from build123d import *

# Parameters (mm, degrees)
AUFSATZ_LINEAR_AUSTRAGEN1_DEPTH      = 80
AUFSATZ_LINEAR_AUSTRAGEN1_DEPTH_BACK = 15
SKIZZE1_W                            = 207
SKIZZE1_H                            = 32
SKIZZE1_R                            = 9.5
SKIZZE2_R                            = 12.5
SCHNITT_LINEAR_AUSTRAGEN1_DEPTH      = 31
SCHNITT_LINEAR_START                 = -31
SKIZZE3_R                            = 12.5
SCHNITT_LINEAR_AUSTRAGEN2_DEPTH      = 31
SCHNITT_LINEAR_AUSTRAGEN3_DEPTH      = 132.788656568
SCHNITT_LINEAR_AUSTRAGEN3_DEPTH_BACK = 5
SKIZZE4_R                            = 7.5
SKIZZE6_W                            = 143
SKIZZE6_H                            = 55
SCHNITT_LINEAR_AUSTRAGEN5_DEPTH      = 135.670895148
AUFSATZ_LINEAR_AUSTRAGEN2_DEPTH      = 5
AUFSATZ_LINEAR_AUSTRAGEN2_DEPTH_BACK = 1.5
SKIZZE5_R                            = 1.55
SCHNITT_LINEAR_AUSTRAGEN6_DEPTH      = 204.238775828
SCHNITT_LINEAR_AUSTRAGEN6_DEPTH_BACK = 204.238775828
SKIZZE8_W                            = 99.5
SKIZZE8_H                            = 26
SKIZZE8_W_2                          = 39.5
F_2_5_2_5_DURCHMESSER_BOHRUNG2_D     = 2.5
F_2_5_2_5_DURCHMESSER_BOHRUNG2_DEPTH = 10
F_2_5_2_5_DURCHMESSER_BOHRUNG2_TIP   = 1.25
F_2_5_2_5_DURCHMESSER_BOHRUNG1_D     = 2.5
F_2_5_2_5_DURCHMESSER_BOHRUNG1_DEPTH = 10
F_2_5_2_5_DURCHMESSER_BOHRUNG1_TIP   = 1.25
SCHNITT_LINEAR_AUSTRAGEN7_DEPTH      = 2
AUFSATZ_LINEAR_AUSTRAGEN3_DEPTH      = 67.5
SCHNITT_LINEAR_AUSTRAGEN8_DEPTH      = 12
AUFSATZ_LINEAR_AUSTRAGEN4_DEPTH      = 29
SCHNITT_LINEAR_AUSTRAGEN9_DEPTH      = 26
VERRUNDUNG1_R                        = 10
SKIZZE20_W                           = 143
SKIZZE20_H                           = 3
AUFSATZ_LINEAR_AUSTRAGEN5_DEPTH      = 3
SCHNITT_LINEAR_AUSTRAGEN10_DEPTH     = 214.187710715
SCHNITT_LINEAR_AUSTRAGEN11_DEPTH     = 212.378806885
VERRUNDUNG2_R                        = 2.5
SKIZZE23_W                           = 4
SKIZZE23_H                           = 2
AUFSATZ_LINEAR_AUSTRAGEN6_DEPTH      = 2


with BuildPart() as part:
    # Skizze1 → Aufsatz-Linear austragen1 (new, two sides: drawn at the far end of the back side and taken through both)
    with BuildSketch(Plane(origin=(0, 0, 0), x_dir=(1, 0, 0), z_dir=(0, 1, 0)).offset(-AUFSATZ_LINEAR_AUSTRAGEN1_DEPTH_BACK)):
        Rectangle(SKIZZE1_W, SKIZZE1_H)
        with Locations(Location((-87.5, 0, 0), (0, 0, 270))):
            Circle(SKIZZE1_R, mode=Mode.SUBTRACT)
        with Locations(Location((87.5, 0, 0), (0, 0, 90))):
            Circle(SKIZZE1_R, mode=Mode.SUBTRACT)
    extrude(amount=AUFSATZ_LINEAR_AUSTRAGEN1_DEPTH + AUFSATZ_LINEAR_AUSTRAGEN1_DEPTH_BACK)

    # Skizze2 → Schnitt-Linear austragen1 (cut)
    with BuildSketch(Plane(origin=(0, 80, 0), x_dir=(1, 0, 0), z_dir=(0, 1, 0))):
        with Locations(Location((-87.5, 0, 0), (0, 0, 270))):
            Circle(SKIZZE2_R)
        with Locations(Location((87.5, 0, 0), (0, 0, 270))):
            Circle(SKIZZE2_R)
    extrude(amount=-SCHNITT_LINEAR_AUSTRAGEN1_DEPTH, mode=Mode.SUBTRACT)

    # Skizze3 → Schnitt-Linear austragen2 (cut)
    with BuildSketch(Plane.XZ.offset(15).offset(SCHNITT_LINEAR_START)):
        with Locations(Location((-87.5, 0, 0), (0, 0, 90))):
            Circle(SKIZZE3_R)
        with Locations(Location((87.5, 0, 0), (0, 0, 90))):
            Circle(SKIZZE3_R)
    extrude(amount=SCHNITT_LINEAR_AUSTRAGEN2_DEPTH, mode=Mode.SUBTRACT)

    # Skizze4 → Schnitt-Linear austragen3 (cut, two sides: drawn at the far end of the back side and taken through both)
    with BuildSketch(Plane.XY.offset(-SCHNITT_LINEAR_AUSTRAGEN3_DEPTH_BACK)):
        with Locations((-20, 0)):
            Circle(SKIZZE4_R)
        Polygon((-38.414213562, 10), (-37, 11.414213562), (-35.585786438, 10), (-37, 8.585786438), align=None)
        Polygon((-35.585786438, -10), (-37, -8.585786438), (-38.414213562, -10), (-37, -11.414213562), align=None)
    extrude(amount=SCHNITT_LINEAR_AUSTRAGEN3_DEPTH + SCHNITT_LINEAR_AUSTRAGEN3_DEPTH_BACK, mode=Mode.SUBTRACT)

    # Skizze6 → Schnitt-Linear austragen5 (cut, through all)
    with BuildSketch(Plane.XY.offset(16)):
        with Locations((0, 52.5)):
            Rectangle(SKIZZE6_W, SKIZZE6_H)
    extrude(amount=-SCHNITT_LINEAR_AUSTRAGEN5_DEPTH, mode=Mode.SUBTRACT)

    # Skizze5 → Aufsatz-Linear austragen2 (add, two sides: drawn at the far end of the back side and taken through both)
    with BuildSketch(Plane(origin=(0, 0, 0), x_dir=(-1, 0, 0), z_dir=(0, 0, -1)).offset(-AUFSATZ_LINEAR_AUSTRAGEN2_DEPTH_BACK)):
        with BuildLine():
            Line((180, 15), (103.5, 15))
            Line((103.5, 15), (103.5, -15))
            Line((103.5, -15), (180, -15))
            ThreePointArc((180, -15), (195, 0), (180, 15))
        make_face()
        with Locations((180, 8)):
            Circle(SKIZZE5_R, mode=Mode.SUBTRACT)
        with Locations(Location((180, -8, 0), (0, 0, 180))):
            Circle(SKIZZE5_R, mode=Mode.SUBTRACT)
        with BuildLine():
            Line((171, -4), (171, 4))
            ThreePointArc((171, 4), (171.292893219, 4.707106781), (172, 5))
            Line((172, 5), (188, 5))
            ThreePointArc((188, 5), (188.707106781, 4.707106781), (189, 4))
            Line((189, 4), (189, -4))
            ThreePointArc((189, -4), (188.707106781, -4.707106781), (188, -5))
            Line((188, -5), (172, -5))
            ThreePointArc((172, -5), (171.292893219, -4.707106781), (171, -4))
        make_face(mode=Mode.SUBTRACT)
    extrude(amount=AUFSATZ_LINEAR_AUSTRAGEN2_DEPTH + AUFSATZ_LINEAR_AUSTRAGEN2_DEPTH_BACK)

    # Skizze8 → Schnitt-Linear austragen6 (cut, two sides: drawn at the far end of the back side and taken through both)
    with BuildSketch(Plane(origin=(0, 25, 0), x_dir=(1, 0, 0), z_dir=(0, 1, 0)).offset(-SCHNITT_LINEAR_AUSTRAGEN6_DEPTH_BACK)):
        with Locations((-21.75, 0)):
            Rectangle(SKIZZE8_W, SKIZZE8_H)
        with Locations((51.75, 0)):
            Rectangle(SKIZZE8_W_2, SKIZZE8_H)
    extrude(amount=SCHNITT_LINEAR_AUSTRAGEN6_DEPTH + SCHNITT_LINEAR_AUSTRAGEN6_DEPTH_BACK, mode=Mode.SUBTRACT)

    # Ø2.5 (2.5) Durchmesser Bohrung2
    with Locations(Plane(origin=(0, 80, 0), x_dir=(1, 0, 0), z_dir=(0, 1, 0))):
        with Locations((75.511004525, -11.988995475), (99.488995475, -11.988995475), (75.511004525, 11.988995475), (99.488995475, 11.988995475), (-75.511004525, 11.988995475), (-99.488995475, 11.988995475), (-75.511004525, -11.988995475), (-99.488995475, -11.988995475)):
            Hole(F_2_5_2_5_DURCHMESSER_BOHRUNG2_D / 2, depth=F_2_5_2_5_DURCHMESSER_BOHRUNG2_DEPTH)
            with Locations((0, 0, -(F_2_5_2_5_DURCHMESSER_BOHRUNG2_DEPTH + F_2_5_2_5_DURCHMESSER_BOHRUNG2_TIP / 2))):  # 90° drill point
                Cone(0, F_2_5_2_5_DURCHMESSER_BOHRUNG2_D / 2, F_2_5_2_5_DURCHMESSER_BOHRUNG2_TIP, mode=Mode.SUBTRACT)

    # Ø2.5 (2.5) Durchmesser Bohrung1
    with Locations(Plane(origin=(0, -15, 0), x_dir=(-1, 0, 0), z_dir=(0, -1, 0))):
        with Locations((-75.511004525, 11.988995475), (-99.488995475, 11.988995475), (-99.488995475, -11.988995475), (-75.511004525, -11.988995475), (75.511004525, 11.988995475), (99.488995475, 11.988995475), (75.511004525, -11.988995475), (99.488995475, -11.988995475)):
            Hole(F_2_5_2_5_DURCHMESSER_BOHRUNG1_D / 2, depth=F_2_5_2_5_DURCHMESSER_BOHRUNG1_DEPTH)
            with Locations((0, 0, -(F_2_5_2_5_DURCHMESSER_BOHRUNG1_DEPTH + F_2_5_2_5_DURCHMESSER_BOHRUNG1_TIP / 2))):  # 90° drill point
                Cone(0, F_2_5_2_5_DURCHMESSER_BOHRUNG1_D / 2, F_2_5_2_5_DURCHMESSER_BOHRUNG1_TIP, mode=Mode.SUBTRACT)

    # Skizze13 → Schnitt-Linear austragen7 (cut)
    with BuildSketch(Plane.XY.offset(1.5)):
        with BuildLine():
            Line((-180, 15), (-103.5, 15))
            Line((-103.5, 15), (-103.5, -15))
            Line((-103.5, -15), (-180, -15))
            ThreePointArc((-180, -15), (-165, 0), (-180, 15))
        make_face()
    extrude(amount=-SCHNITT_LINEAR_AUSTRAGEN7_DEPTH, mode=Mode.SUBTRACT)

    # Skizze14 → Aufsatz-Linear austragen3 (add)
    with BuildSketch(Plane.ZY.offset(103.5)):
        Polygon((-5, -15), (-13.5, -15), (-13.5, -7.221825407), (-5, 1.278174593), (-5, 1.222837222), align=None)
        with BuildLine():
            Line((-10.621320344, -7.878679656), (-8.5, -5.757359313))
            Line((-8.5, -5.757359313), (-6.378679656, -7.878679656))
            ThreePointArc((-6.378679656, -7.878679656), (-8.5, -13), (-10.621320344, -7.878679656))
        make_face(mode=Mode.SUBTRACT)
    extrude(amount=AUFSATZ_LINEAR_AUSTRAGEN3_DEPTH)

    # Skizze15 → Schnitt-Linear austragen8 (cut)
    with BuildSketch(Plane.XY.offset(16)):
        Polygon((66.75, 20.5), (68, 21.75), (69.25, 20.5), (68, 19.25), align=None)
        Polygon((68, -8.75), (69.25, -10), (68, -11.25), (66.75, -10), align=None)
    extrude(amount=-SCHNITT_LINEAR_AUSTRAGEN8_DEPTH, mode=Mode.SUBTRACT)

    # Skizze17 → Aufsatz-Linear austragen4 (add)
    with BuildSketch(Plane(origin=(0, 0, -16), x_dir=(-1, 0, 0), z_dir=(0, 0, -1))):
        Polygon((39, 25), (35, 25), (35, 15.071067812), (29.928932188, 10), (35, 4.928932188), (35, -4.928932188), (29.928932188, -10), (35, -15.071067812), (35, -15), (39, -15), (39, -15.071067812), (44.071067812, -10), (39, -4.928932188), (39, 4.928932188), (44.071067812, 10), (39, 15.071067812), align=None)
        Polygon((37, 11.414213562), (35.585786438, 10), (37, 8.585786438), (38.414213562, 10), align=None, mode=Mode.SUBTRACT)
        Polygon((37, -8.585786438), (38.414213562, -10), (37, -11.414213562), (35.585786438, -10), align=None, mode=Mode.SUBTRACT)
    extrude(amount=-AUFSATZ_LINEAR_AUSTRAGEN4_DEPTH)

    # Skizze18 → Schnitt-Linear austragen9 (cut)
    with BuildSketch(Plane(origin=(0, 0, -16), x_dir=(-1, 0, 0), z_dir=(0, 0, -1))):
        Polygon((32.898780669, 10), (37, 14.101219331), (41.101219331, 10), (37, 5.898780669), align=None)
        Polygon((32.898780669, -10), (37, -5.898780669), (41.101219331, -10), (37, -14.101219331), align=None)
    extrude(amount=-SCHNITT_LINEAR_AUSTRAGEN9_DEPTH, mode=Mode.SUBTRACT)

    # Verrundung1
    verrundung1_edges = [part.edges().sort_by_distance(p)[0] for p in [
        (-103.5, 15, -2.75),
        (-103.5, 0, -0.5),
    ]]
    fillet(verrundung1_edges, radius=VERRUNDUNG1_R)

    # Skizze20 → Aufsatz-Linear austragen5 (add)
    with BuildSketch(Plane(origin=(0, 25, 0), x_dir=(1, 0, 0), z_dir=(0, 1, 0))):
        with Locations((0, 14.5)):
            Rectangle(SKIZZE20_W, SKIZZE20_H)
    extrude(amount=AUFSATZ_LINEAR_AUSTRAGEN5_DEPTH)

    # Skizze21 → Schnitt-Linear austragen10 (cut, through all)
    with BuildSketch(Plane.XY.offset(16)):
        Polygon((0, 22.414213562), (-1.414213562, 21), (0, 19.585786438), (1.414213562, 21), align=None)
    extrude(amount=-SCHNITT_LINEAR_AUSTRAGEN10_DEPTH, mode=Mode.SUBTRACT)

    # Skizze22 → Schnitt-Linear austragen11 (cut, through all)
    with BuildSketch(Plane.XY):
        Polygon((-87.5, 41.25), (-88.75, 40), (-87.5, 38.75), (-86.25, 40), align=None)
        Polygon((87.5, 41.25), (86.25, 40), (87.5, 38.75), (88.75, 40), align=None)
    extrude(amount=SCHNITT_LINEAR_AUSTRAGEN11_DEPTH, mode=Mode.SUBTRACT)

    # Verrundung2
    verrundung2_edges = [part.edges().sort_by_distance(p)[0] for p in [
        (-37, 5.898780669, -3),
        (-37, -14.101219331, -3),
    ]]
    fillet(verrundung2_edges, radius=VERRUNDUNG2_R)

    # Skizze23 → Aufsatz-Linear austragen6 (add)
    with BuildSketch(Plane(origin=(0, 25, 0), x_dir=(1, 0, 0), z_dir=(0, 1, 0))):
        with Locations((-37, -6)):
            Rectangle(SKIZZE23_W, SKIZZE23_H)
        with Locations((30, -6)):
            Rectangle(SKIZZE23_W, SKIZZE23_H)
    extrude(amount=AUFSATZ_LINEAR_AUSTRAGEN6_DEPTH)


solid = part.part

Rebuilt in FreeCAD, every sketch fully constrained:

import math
import FreeCAD as App
import Part
import Sketcher
from FreeCAD import Vector


def edges_at(feature, points):
    """Names of the edges that pass closest to the given points."""
    edges = feature.Shape.Edges
    near = lambda p: min(range(len(edges)), key=lambda i: edges[i].distToShape(Part.Vertex(*p))[0])
    return sorted({f"Edge{near(p) + 1}" for p in points})

doc = App.newDocument("Part")
body = doc.addObject("PartDesign::Body", "Body")

sketch1 = doc.addObject("Sketcher::SketchObject", "Sketch")
body.addObject(sketch1)
sketch1.AttachmentSupport = (doc.XZ_Plane, [""])
sketch1.MapMode = "FlatFace"
sketch1.addGeometry([
    Part.LineSegment(Vector(-104, -16, 0), Vector(-104, 16, 0)),
    Part.LineSegment(Vector(-104, 16, 0), Vector(104, 16, 0)),
    Part.LineSegment(Vector(104, 16, 0), Vector(104, -16, 0)),
    Part.LineSegment(Vector(104, -16, 0), Vector(-104, -16, 0)),
    Part.Circle(Vector(-88, 0, 0), Vector(0, 0, 1), 10),
    Part.Circle(Vector(88, 0, 0), Vector(0, 0, 1), 10),
], False)
sketch1.addConstraint([
    Sketcher.Constraint("Coincident", 0, 2, 1, 1),
    Sketcher.Constraint("Coincident", 1, 2, 2, 1),
    Sketcher.Constraint("Coincident", 2, 2, 3, 1),
    Sketcher.Constraint("Coincident", 3, 2, 0, 1),
    Sketcher.Constraint("Vertical", 0),
    Sketcher.Constraint("Horizontal", 1),
    Sketcher.Constraint("Vertical", 2),
    Sketcher.Constraint("Horizontal", 3),
    Sketcher.Constraint("Equal", 4, 5),
    Sketcher.Constraint("Symmetric", 4, 3, 5, 3, -1, 1),
    Sketcher.Constraint("Symmetric", 0, 2, 2, 2, -1, 1),
    Sketcher.Constraint("PointOnObject", 4, 3, -1),
    Sketcher.Constraint("Diameter", 4, 19.0),
    Sketcher.Constraint("DistanceX", 1, 1, 1, 2, 207.0),
    Sketcher.Constraint("DistanceY", 0, 1, 0, 2, 32.0),
    Sketcher.Constraint("DistanceX", 4, 3, 5, 3, 175.0),
])
pad1 = doc.addObject("PartDesign::Pad", "Pad")
body.addObject(pad1)
pad1.Profile = sketch1
pad1.Type = "TwoLengths"
pad1.Length = 80
pad1.Length2 = 15
pad1.Reversed = True

sketch2 = doc.addObject("Sketcher::SketchObject", "Sketch001")
body.addObject(sketch2)
sketch2.AttachmentSupport = (doc.XZ_Plane, [""])
sketch2.MapMode = "FlatFace"
sketch2.AttachmentOffset = App.Placement(Vector(0, 0, -80), App.Rotation())
sketch2.addGeometry([
    Part.Circle(Vector(-88, 0, 0), Vector(0, 0, 1), 12),
    Part.Circle(Vector(88, 0, 0), Vector(0, 0, 1), 12),
], False)
sketch2.addConstraint([
    Sketcher.Constraint("Equal", 0, 1),
    Sketcher.Constraint("Symmetric", 0, 3, 1, 3, -1, 1),
    Sketcher.Constraint("PointOnObject", 0, 3, -1),
    Sketcher.Constraint("Diameter", 0, 25.0),
    Sketcher.Constraint("DistanceX", 0, 3, 1, 3, 175.0),
])
pocket1 = doc.addObject("PartDesign::Pocket", "Pocket")
body.addObject(pocket1)
pocket1.Profile = sketch2
pocket1.Length = 31
pocket1.Reversed = True

sketch3 = doc.addObject("Sketcher::SketchObject", "Sketch002")
body.addObject(sketch3)
sketch3.AttachmentSupport = (doc.XZ_Plane, [""])
sketch3.MapMode = "FlatFace"
sketch3.AttachmentOffset = App.Placement(Vector(0, 0, -16), App.Rotation())
sketch3.addGeometry([
    Part.Circle(Vector(-88, 0, 0), Vector(0, 0, 1), 12),
    Part.Circle(Vector(88, 0, 0), Vector(0, 0, 1), 12),
], False)
sketch3.addConstraint([
    Sketcher.Constraint("Equal", 0, 1),
    Sketcher.Constraint("Symmetric", 0, 3, 1, 3, -1, 1),
    Sketcher.Constraint("PointOnObject", 0, 3, -1),
    Sketcher.Constraint("Diameter", 0, 25.0),
    Sketcher.Constraint("DistanceX", 0, 3, 1, 3, 175.0),
])
pocket2 = doc.addObject("PartDesign::Pocket", "Pocket001")
body.addObject(pocket2)
pocket2.Profile = sketch3
pocket2.Length = 31
pocket2.Reversed = True

sketch4 = doc.addObject("Sketcher::SketchObject", "Sketch003")
body.addObject(sketch4)
sketch4.AttachmentSupport = (doc.XY_Plane, [""])
sketch4.MapMode = "FlatFace"
sketch4.addGeometry([
    Part.Circle(Vector(-20, 0, 0), Vector(0, 0, 1), 7.5),
    Part.LineSegment(Vector(-37, 11.4, 0), Vector(-38.4, 10, 0)),
    Part.LineSegment(Vector(-38.4, 10, 0), Vector(-37, 8.6, 0)),
    Part.LineSegment(Vector(-37, 8.6, 0), Vector(-35.6, 10, 0)),
    Part.LineSegment(Vector(-35.6, 10, 0), Vector(-37, 11.4, 0)),
    Part.LineSegment(Vector(-35.6, -10, 0), Vector(-37, -8.6, 0)),
    Part.LineSegment(Vector(-37, -8.6, 0), Vector(-38.4, -10, 0)),
    Part.LineSegment(Vector(-38.4, -10, 0), Vector(-37, -11.4, 0)),
    Part.LineSegment(Vector(-37, -11.4, 0), Vector(-35.6, -10, 0)),
], False)
sketch4.addConstraint([
    Sketcher.Constraint("Coincident", 1, 2, 2, 1),
    Sketcher.Constraint("Coincident", 2, 2, 3, 1),
    Sketcher.Constraint("Coincident", 3, 2, 4, 1),
    Sketcher.Constraint("Coincident", 4, 2, 1, 1),
    Sketcher.Constraint("Coincident", 5, 2, 6, 1),
    Sketcher.Constraint("Coincident", 6, 2, 7, 1),
    Sketcher.Constraint("Coincident", 7, 2, 8, 1),
    Sketcher.Constraint("Coincident", 8, 2, 5, 1),
    Sketcher.Constraint("Symmetric", 2, 2, 5, 2, -1),
    Sketcher.Constraint("Symmetric", 1, 2, 6, 2, -1),
    Sketcher.Constraint("Symmetric", 4, 2, 7, 2, -1),
    Sketcher.Constraint("Symmetric", 3, 2, 8, 2, -1),
    Sketcher.Constraint("PointOnObject", 0, 3, -1),
    Sketcher.Constraint("Perpendicular", 1, 2),
    Sketcher.Constraint("Perpendicular", 2, 3),
    Sketcher.Constraint("Perpendicular", 3, 4),
    Sketcher.Constraint("Parallel", 4, 5),
    Sketcher.Constraint("Horizontal", 1, 2, 3, 2),
    Sketcher.Constraint("Diameter", 0, 15.0),
    Sketcher.Constraint("Distance", 1, 2.0),
    Sketcher.Constraint("DistanceX", 0, 3, -1, 1, 20.0),
    Sketcher.Constraint("DistanceY", -1, 1, 1, 2, 10.0),
    Sketcher.Constraint("DistanceX", 2, 2, -1, 1, 37.0),
])
pocket3 = doc.addObject("PartDesign::Pocket", "Pocket002")
body.addObject(pocket3)
pocket3.Profile = sketch4
pocket3.Type = "TwoLengths"
pocket3.Length = 132.788657
pocket3.Length2 = 5
pocket3.Reversed = True

sketch5 = doc.addObject("Sketcher::SketchObject", "Sketch004")
body.addObject(sketch5)
sketch5.AttachmentSupport = (doc.XY_Plane, [""])
sketch5.MapMode = "FlatFace"
sketch5.AttachmentOffset = App.Placement(Vector(0, 0, 16), App.Rotation())
sketch5.addGeometry([
    Part.LineSegment(Vector(-72, 80, 0), Vector(-72, 25, 0)),
    Part.LineSegment(Vector(-72, 25, 0), Vector(72, 25, 0)),
    Part.LineSegment(Vector(72, 25, 0), Vector(72, 80, 0)),
    Part.LineSegment(Vector(72, 80, 0), Vector(-72, 80, 0)),
], False)
sketch5.addConstraint([
    Sketcher.Constraint("Coincident", 0, 2, 1, 1),
    Sketcher.Constraint("Coincident", 1, 2, 2, 1),
    Sketcher.Constraint("Coincident", 2, 2, 3, 1),
    Sketcher.Constraint("Coincident", 3, 2, 0, 1),
    Sketcher.Constraint("Vertical", 0),
    Sketcher.Constraint("Horizontal", 1),
    Sketcher.Constraint("Vertical", 2),
    Sketcher.Constraint("Horizontal", 3),
    Sketcher.Constraint("DistanceX", 1, 1, 1, 2, 143.0),
    Sketcher.Constraint("DistanceY", 0, 2, 0, 1, 55.0),
    Sketcher.Constraint("DistanceY", -1, 1, 0, 2, 25.0),
    Sketcher.Constraint("DistanceX", 0, 2, -1, 1, 71.5),
])
pocket4 = doc.addObject("PartDesign::Pocket", "Pocket003")
body.addObject(pocket4)
pocket4.Profile = sketch5
pocket4.Type = "ThroughAll"

sketch6 = doc.addObject("Sketcher::SketchObject", "Sketch005")
body.addObject(sketch6)
sketch6.AttachmentSupport = (doc.XY_Plane, [""])
sketch6.MapMode = "FlatFace"
sketch6.addGeometry([
    Part.LineSegment(Vector(-180, 15, 0), Vector(-103.5, 15, 0)),
    Part.LineSegment(Vector(-103.5, 15, 0), Vector(-103.5, -15, 0)),
    Part.LineSegment(Vector(-103.5, -15, 0), Vector(-180, -15, 0)),
    Part.ArcOfCircle(Part.Circle(Vector(-180, 0, 0), Vector(0, 0, 1), 15), math.radians(90), math.radians(270)),
    Part.Circle(Vector(-180, -8, 0), Vector(0, 0, 1), 1.6),
    Part.ArcOfCircle(Part.Circle(Vector(-172, -4, 0), Vector(0, 0, 1), 1), math.radians(-90), math.radians(0)),
    Part.LineSegment(Vector(-171, -4, 0), Vector(-171, 4, 0)),
    Part.ArcOfCircle(Part.Circle(Vector(-172, 4, 0), Vector(0, 0, 1), 1), math.radians(0), math.radians(90)),
    Part.LineSegment(Vector(-172, 5, 0), Vector(-188, 5, 0)),
    Part.ArcOfCircle(Part.Circle(Vector(-188, 4, 0), Vector(0, 0, 1), 1), math.radians(90), math.radians(180)),
    Part.LineSegment(Vector(-189, 4, 0), Vector(-189, -4, 0)),
    Part.ArcOfCircle(Part.Circle(Vector(-188, -4, 0), Vector(0, 0, 1), 1), math.radians(-180), math.radians(-90)),
    Part.LineSegment(Vector(-188, -5, 0), Vector(-172, -5, 0)),
    Part.Circle(Vector(-180, 8, 0), Vector(0, 0, 1), 1.6),
], False)
sketch6.addConstraint([
    Sketcher.Constraint("Coincident", 0, 2, 1, 1),
    Sketcher.Constraint("Coincident", 1, 2, 2, 1),
    Sketcher.Constraint("Tangent", 2, 2, 3, 2),
    Sketcher.Constraint("Tangent", 3, 1, 0, 1),
    Sketcher.Constraint("Tangent", 5, 2, 6, 1),
    Sketcher.Constraint("Tangent", 6, 2, 7, 1),
    Sketcher.Constraint("Tangent", 7, 2, 8, 1),
    Sketcher.Constraint("Tangent", 8, 2, 9, 1),
    Sketcher.Constraint("Tangent", 9, 2, 10, 1),
    Sketcher.Constraint("Tangent", 10, 2, 11, 1),
    Sketcher.Constraint("Tangent", 11, 2, 12, 1),
    Sketcher.Constraint("Tangent", 12, 2, 5, 1),
    Sketcher.Constraint("Horizontal", 0),
    Sketcher.Constraint("Vertical", 1),
    Sketcher.Constraint("Horizontal", 2),
    Sketcher.Constraint("Vertical", 6),
    Sketcher.Constraint("Horizontal", 8),
    Sketcher.Constraint("Vertical", 10),
    Sketcher.Constraint("Horizontal", 12),
    Sketcher.Constraint("Equal", 5, 7),
    Sketcher.Constraint("Equal", 7, 9),
    Sketcher.Constraint("Equal", 9, 11),
    Sketcher.Constraint("Equal", 4, 13),
    Sketcher.Constraint("Symmetric", 4, 3, 13, 3, -1),
    Sketcher.Constraint("PointOnObject", 3, 3, -1),
    Sketcher.Constraint("Vertical", 3, 3, 4, 3),
    Sketcher.Constraint("Radius", 3, 15.0),
    Sketcher.Constraint("Radius", 5, 1.0),
    Sketcher.Constraint("Diameter", 4, 3.1),
    Sketcher.Constraint("DistanceX", 8, 2, 8, 1, 16.0),
    Sketcher.Constraint("DistanceY", 6, 1, 6, 2, 8.0),
    Sketcher.Constraint("DistanceX", 0, 1, 0, 2, 76.5),
    Sketcher.Constraint("DistanceX", 3, 3, -1, 1, 180.0),
    Sketcher.Constraint("DistanceY", 4, 3, -1, 1, 8.0),
    Sketcher.Constraint("DistanceX", 5, 3, -1, 1, 172.0),
    Sketcher.Constraint("DistanceY", 5, 3, -1, 1, 4.0),
])
pad2 = doc.addObject("PartDesign::Pad", "Pad001")
body.addObject(pad2)
pad2.Profile = sketch6
pad2.Type = "TwoLengths"
pad2.Length = 5
pad2.Length2 = 1.5
pad2.Reversed = True

sketch7 = doc.addObject("Sketcher::SketchObject", "Sketch006")
body.addObject(sketch7)
sketch7.AttachmentSupport = (doc.XZ_Plane, [""])
sketch7.MapMode = "FlatFace"
sketch7.AttachmentOffset = App.Placement(Vector(0, 0, -25), App.Rotation())
sketch7.addGeometry([
    Part.LineSegment(Vector(-72, -13, 0), Vector(-72, 13, 0)),
    Part.LineSegment(Vector(-72, 13, 0), Vector(28, 13, 0)),
    Part.LineSegment(Vector(28, 13, 0), Vector(28, -13, 0)),
    Part.LineSegment(Vector(28, -13, 0), Vector(-72, -13, 0)),
    Part.LineSegment(Vector(32, -13, 0), Vector(32, 13, 0)),
    Part.LineSegment(Vector(32, 13, 0), Vector(72, 13, 0)),
    Part.LineSegment(Vector(72, 13, 0), Vector(72, -13, 0)),
    Part.LineSegment(Vector(72, -13, 0), Vector(32, -13, 0)),
], False)
sketch7.addConstraint([
    Sketcher.Constraint("Coincident", 0, 2, 1, 1),
    Sketcher.Constraint("Coincident", 1, 2, 2, 1),
    Sketcher.Constraint("Coincident", 2, 2, 3, 1),
    Sketcher.Constraint("Coincident", 3, 2, 0, 1),
    Sketcher.Constraint("Coincident", 4, 2, 5, 1),
    Sketcher.Constraint("Coincident", 5, 2, 6, 1),
    Sketcher.Constraint("Coincident", 6, 2, 7, 1),
    Sketcher.Constraint("Coincident", 7, 2, 4, 1),
    Sketcher.Constraint("Vertical", 0),
    Sketcher.Constraint("Horizontal", 1),
    Sketcher.Constraint("Vertical", 2),
    Sketcher.Constraint("Horizontal", 3),
    Sketcher.Constraint("Vertical", 4),
    Sketcher.Constraint("Horizontal", 5),
    Sketcher.Constraint("Vertical", 6),
    Sketcher.Constraint("Horizontal", 7),
    Sketcher.Constraint("Symmetric", 3, 2, 5, 2, -1, 1),
    Sketcher.Constraint("Horizontal", 1, 2, 4, 2),
    Sketcher.Constraint("Horizontal", 3, 2, 6, 2),
    Sketcher.Constraint("DistanceY", 0, 1, 0, 2, 26.0),
    Sketcher.Constraint("DistanceX", 1, 1, 1, 2, 99.5),
    Sketcher.Constraint("DistanceX", 5, 1, 5, 2, 39.5),
    Sketcher.Constraint("DistanceX", -1, 1, 1, 2, 28.0),
])
pocket5 = doc.addObject("PartDesign::Pocket", "Pocket004")
body.addObject(pocket5)
pocket5.Profile = sketch7
pocket5.Type = "ThroughAll"
pocket5.Midplane = True

sketch8 = doc.addObject("Sketcher::SketchObject", "Sketch007")
body.addObject(sketch8)
sketch8.AttachmentSupport = (doc.XZ_Plane, [""])
sketch8.MapMode = "FlatFace"
sketch8.AttachmentOffset = App.Placement(Vector(0, 0, -80), App.Rotation())
sketch8.addGeometry([
    Part.Circle(Vector(75.5, 12, 0), Vector(0, 0, 1), 1.2),
    Part.Circle(Vector(99.5, 12, 0), Vector(0, 0, 1), 1.2),
    Part.Circle(Vector(75.5, -12, 0), Vector(0, 0, 1), 1.2),
    Part.Circle(Vector(99.5, -12, 0), Vector(0, 0, 1), 1.2),
    Part.Circle(Vector(-75.5, -12, 0), Vector(0, 0, 1), 1.2),
    Part.Circle(Vector(-99.5, -12, 0), Vector(0, 0, 1), 1.2),
    Part.Circle(Vector(-75.5, 12, 0), Vector(0, 0, 1), 1.2),
    Part.Circle(Vector(-99.5, 12, 0), Vector(0, 0, 1), 1.2),
], False)
sketch8.addConstraint([
    Sketcher.Constraint("Equal", 0, 1),
    Sketcher.Constraint("Equal", 1, 2),
    Sketcher.Constraint("Equal", 2, 3),
    Sketcher.Constraint("Equal", 3, 4),
    Sketcher.Constraint("Equal", 4, 5),
    Sketcher.Constraint("Equal", 5, 6),
    Sketcher.Constraint("Equal", 6, 7),
    Sketcher.Constraint("Symmetric", 0, 3, 4, 3, -1, 1),
    Sketcher.Constraint("Symmetric", 1, 3, 5, 3, -1, 1),
    Sketcher.Constraint("Symmetric", 2, 3, 6, 3, -1, 1),
    Sketcher.Constraint("Symmetric", 3, 3, 7, 3, -1, 1),
    Sketcher.Constraint("Symmetric", 2, 3, 4, 3, -2),
    Sketcher.Constraint("Symmetric", 3, 3, 5, 3, -2),
    Sketcher.Constraint("Horizontal", 0, 3, 1, 3),
    Sketcher.Constraint("Diameter", 0, 2.5),
    Sketcher.Constraint("DistanceX", 4, 3, 3, 3, 175.0),
    Sketcher.Constraint("DistanceX", 0, 3, 1, 3, 23.977991),
    Sketcher.Constraint("DistanceY", 2, 3, 0, 3, 23.977991),
])
doc.recompute()
hole = doc.addObject("PartDesign::Hole", "Hole")
body.addObject(hole)
hole.Profile = sketch8
hole.ThreadType = "None"
hole.Diameter = 2.5
hole.DepthType = "Dimension"
hole.Depth = 10
hole.DrillPoint = "Angled"
hole.DrillPointAngle = 90
hole.Reversed = True

sketch9 = doc.addObject("Sketcher::SketchObject", "Sketch008")
body.addObject(sketch9)
sketch9.AttachmentSupport = (doc.XZ_Plane, [""])
sketch9.MapMode = "FlatFace"
sketch9.AttachmentOffset = App.Placement(Vector(0, 0, 15), App.Rotation())
sketch9.addGeometry([
    Part.Circle(Vector(75.5, -12, 0), Vector(0, 0, 1), 1.2),
    Part.Circle(Vector(99.5, -12, 0), Vector(0, 0, 1), 1.2),
    Part.Circle(Vector(99.5, 12, 0), Vector(0, 0, 1), 1.2),
    Part.Circle(Vector(75.5, 12, 0), Vector(0, 0, 1), 1.2),
    Part.Circle(Vector(-75.5, -12, 0), Vector(0, 0, 1), 1.2),
    Part.Circle(Vector(-99.5, -12, 0), Vector(0, 0, 1), 1.2),
    Part.Circle(Vector(-75.5, 12, 0), Vector(0, 0, 1), 1.2),
    Part.Circle(Vector(-99.5, 12, 0), Vector(0, 0, 1), 1.2),
], False)
sketch9.addConstraint([
    Sketcher.Constraint("Equal", 0, 1),
    Sketcher.Constraint("Equal", 1, 2),
    Sketcher.Constraint("Equal", 2, 3),
    Sketcher.Constraint("Equal", 3, 4),
    Sketcher.Constraint("Equal", 4, 5),
    Sketcher.Constraint("Equal", 5, 6),
    Sketcher.Constraint("Equal", 6, 7),
    Sketcher.Constraint("Symmetric", 3, 3, 4, 3, -1, 1),
    Sketcher.Constraint("Symmetric", 2, 3, 5, 3, -1, 1),
    Sketcher.Constraint("Symmetric", 0, 3, 6, 3, -1, 1),
    Sketcher.Constraint("Symmetric", 1, 3, 7, 3, -1, 1),
    Sketcher.Constraint("Symmetric", 0, 3, 4, 3, -2),
    Sketcher.Constraint("Symmetric", 1, 3, 5, 3, -2),
    Sketcher.Constraint("Horizontal", 0, 3, 1, 3),
    Sketcher.Constraint("Diameter", 0, 2.5),
    Sketcher.Constraint("DistanceX", 4, 3, 1, 3, 175.0),
    Sketcher.Constraint("DistanceX", 0, 3, 1, 3, 23.977991),
    Sketcher.Constraint("DistanceY", 1, 3, 2, 3, 23.977991),
])
doc.recompute()
hole2 = doc.addObject("PartDesign::Hole", "Hole001")
body.addObject(hole2)
hole2.Profile = sketch9
hole2.ThreadType = "None"
hole2.Diameter = 2.5
hole2.DepthType = "Dimension"
hole2.Depth = 10
hole2.DrillPoint = "Angled"
hole2.DrillPointAngle = 90

sketch10 = doc.addObject("Sketcher::SketchObject", "Sketch009")
body.addObject(sketch10)
sketch10.AttachmentSupport = (doc.XY_Plane, [""])
sketch10.MapMode = "FlatFace"
sketch10.AttachmentOffset = App.Placement(Vector(0, 0, 1.5), App.Rotation())
sketch10.addGeometry([
    Part.LineSegment(Vector(-104, 15, 0), Vector(-180, 15, 0)),
    Part.ArcOfCircle(Part.Circle(Vector(-180, 0, 0), Vector(0, 0, 1), 15), math.radians(-90), math.radians(90)),
    Part.LineSegment(Vector(-180, -15, 0), Vector(-104, -15, 0)),
    Part.LineSegment(Vector(-104, -15, 0), Vector(-104, 15, 0)),
], False)
sketch10.addConstraint([
    Sketcher.Constraint("Tangent", 0, 2, 1, 2),
    Sketcher.Constraint("Tangent", 1, 1, 2, 1),
    Sketcher.Constraint("Coincident", 2, 2, 3, 1),
    Sketcher.Constraint("Coincident", 3, 2, 0, 1),
    Sketcher.Constraint("Horizontal", 0),
    Sketcher.Constraint("Horizontal", 2),
    Sketcher.Constraint("Vertical", 3),
    Sketcher.Constraint("PointOnObject", 1, 3, -1),
    Sketcher.Constraint("Radius", 1, 15.0),
    Sketcher.Constraint("DistanceX", 0, 2, 0, 1, 76.5),
    Sketcher.Constraint("DistanceX", 1, 3, -1, 1, 180.0),
])
pocket6 = doc.addObject("PartDesign::Pocket", "Pocket005")
body.addObject(pocket6)
pocket6.Profile = sketch10
pocket6.Length = 2

sketch11 = doc.addObject("Sketcher::SketchObject", "Sketch010")
body.addObject(sketch11)
sketch11.AttachmentSupport = (doc.YZ_Plane, [""])
sketch11.MapMode = "FlatFace"
sketch11.AttachmentOffset = App.Placement(Vector(0, 0, -103.5), App.Rotation())
sketch11.addGeometry([
    Part.LineSegment(Vector(-15, -13.5, 0), Vector(-15, -5, 0)),
    Part.LineSegment(Vector(-15, -5, 0), Vector(1.3, -5, 0)),
    Part.LineSegment(Vector(1.3, -5, 0), Vector(-7.2, -13.5, 0)),
    Part.LineSegment(Vector(-7.2, -13.5, 0), Vector(-15, -13.5, 0)),
    Part.LineSegment(Vector(-7.9, -10.6, 0), Vector(-5.8, -8.5, 0)),
    Part.LineSegment(Vector(-5.8, -8.5, 0), Vector(-7.9, -6.4, 0)),
    Part.ArcOfCircle(Part.Circle(Vector(-10, -8.5, 0), Vector(0, 0, 1), 3), math.radians(45), math.radians(315)),
], False)
sketch11.addConstraint([
    Sketcher.Constraint("Coincident", 0, 2, 1, 1),
    Sketcher.Constraint("Coincident", 1, 2, 2, 1),
    Sketcher.Constraint("Coincident", 2, 2, 3, 1),
    Sketcher.Constraint("Coincident", 3, 2, 0, 1),
    Sketcher.Constraint("Coincident", 4, 2, 5, 1),
    Sketcher.Constraint("Tangent", 5, 2, 6, 1),
    Sketcher.Constraint("Tangent", 6, 2, 4, 1),
    Sketcher.Constraint("Vertical", 0),
    Sketcher.Constraint("Horizontal", 1),
    Sketcher.Constraint("Horizontal", 3),
    Sketcher.Constraint("Parallel", 2, 4),
    Sketcher.Constraint("Perpendicular", 4, 5),
    Sketcher.Constraint("Horizontal", 6, 3, 4, 2),
    Sketcher.Constraint("Radius", 6, 3.0),
    Sketcher.Constraint("DistanceY", 0, 1, 0, 2, 8.5),
    Sketcher.Constraint("DistanceX", 6, 3, -1, 1, 10.0),
    Sketcher.Constraint("DistanceX", 0, 2, -1, 1, 15.0),
    Sketcher.Constraint("DistanceY", 0, 2, -1, 1, 5.0),
    Sketcher.Constraint("DistanceY", 2, 2, 6, 3, 5.0),
    Sketcher.Constraint("DistanceX", 1, 1, 1, 2, 16.278175),
])
pad3 = doc.addObject("PartDesign::Pad", "Pad002")
body.addObject(pad3)
pad3.Profile = sketch11
pad3.Length = 67.5
pad3.Reversed = True

sketch12 = doc.addObject("Sketcher::SketchObject", "Sketch011")
body.addObject(sketch12)
sketch12.AttachmentSupport = (doc.XY_Plane, [""])
sketch12.MapMode = "FlatFace"
sketch12.AttachmentOffset = App.Placement(Vector(0, 0, 16), App.Rotation())
sketch12.addGeometry([
    Part.LineSegment(Vector(68, 21.8, 0), Vector(66.8, 20.5, 0)),
    Part.LineSegment(Vector(66.8, 20.5, 0), Vector(68, 19.2, 0)),
    Part.LineSegment(Vector(68, 19.2, 0), Vector(69.2, 20.5, 0)),
    Part.LineSegment(Vector(69.2, 20.5, 0), Vector(68, 21.8, 0)),
    Part.LineSegment(Vector(69.2, -10, 0), Vector(68, -8.8, 0)),
    Part.LineSegment(Vector(68, -8.8, 0), Vector(66.8, -10, 0)),
    Part.LineSegment(Vector(66.8, -10, 0), Vector(68, -11.2, 0)),
    Part.LineSegment(Vector(68, -11.2, 0), Vector(69.2, -10, 0)),
], False)
sketch12.addConstraint([
    Sketcher.Constraint("Coincident", 0, 2, 1, 1),
    Sketcher.Constraint("Coincident", 1, 2, 2, 1),
    Sketcher.Constraint("Coincident", 2, 2, 3, 1),
    Sketcher.Constraint("Coincident", 3, 2, 0, 1),
    Sketcher.Constraint("Coincident", 4, 2, 5, 1),
    Sketcher.Constraint("Coincident", 5, 2, 6, 1),
    Sketcher.Constraint("Coincident", 6, 2, 7, 1),
    Sketcher.Constraint("Coincident", 7, 2, 4, 1),
    Sketcher.Constraint("Perpendicular", 0, 1),
    Sketcher.Constraint("Perpendicular", 1, 2),
    Sketcher.Constraint("Perpendicular", 2, 3),
    Sketcher.Constraint("Parallel", 3, 4),
    Sketcher.Constraint("Perpendicular", 4, 5),
    Sketcher.Constraint("Perpendicular", 5, 6),
    Sketcher.Constraint("Perpendicular", 6, 7),
    Sketcher.Constraint("Horizontal", 0, 2, 2, 2),
    Sketcher.Constraint("Horizontal", 5, 2, 7, 2),
    Sketcher.Constraint("Vertical", 1, 2, 3, 2),
    Sketcher.Constraint("Vertical", 3, 2, 4, 2),
    Sketcher.Constraint("Vertical", 0, 2, 5, 2),
    Sketcher.Constraint("DistanceX", -1, 1, 1, 2, 68.0),
    Sketcher.Constraint("DistanceY", 5, 2, -1, 1, 10.0),
    Sketcher.Constraint("DistanceY", 4, 2, 1, 2, 28.0),
    Sketcher.Constraint("DistanceY", -1, 1, 0, 2, 20.5),
])
pocket7 = doc.addObject("PartDesign::Pocket", "Pocket006")
body.addObject(pocket7)
pocket7.Profile = sketch12
pocket7.Length = 12

sketch13 = doc.addObject("Sketcher::SketchObject", "Sketch012")
body.addObject(sketch13)
sketch13.AttachmentSupport = (doc.XY_Plane, [""])
sketch13.MapMode = "FlatFace"
sketch13.AttachmentOffset = App.Placement(Vector(0, 0, -16), App.Rotation())
sketch13.addGeometry([
    Part.LineSegment(Vector(-39, 25, 0), Vector(-35, 25, 0)),
    Part.LineSegment(Vector(-35, 25, 0), Vector(-35, 15.07, 0)),
    Part.LineSegment(Vector(-35, 15.07, 0), Vector(-29.93, 10, 0)),
    Part.LineSegment(Vector(-29.93, 10, 0), Vector(-35, 4.93, 0)),
    Part.LineSegment(Vector(-35, 4.93, 0), Vector(-35, -4.93, 0)),
    Part.LineSegment(Vector(-35, -4.93, 0), Vector(-29.93, -10, 0)),
    Part.LineSegment(Vector(-29.93, -10, 0), Vector(-35, -15.07, 0)),
    Part.LineSegment(Vector(-35, -15.07, 0), Vector(-35, -15, 0)),
    Part.LineSegment(Vector(-35, -15, 0), Vector(-39, -15, 0)),
    Part.LineSegment(Vector(-39, -15, 0), Vector(-39, -15.07, 0)),
    Part.LineSegment(Vector(-39, -15.07, 0), Vector(-44.07, -10, 0)),
    Part.LineSegment(Vector(-44.07, -10, 0), Vector(-39, -4.93, 0)),
    Part.LineSegment(Vector(-39, -4.93, 0), Vector(-39, 4.93, 0)),
    Part.LineSegment(Vector(-39, 4.93, 0), Vector(-44.07, 10, 0)),
    Part.LineSegment(Vector(-44.07, 10, 0), Vector(-39, 15.07, 0)),
    Part.LineSegment(Vector(-39, 15.07, 0), Vector(-39, 25, 0)),
    Part.LineSegment(Vector(-35.59, -10, 0), Vector(-37, -8.59, 0)),
    Part.LineSegment(Vector(-37, -8.59, 0), Vector(-38.41, -10, 0)),
    Part.LineSegment(Vector(-38.41, -10, 0), Vector(-37, -11.41, 0)),
    Part.LineSegment(Vector(-37, -11.41, 0), Vector(-35.59, -10, 0)),
    Part.LineSegment(Vector(-35.59, 10, 0), Vector(-37, 11.41, 0)),
    Part.LineSegment(Vector(-37, 11.41, 0), Vector(-38.41, 10, 0)),
    Part.LineSegment(Vector(-38.41, 10, 0), Vector(-37, 8.59, 0)),
    Part.LineSegment(Vector(-37, 8.59, 0), Vector(-35.59, 10, 0)),
], False)
sketch13.addConstraint([
    Sketcher.Constraint("Coincident", 0, 2, 1, 1),
    Sketcher.Constraint("Coincident", 1, 2, 2, 1),
    Sketcher.Constraint("Coincident", 2, 2, 3, 1),
    Sketcher.Constraint("Coincident", 3, 2, 4, 1),
    Sketcher.Constraint("Coincident", 4, 2, 5, 1),
    Sketcher.Constraint("Coincident", 5, 2, 6, 1),
    Sketcher.Constraint("Coincident", 6, 2, 7, 1),
    Sketcher.Constraint("Coincident", 7, 2, 8, 1),
    Sketcher.Constraint("Coincident", 8, 2, 9, 1),
    Sketcher.Constraint("Coincident", 9, 2, 10, 1),
    Sketcher.Constraint("Coincident", 10, 2, 11, 1),
    Sketcher.Constraint("Coincident", 11, 2, 12, 1),
    Sketcher.Constraint("Coincident", 12, 2, 13, 1),
    Sketcher.Constraint("Coincident", 13, 2, 14, 1),
    Sketcher.Constraint("Coincident", 14, 2, 15, 1),
    Sketcher.Constraint("Coincident", 15, 2, 0, 1),
    Sketcher.Constraint("Coincident", 16, 2, 17, 1),
    Sketcher.Constraint("Coincident", 17, 2, 18, 1),
    Sketcher.Constraint("Coincident", 18, 2, 19, 1),
    Sketcher.Constraint("Coincident", 19, 2, 16, 1),
    Sketcher.Constraint("Coincident", 20, 2, 21, 1),
    Sketcher.Constraint("Coincident", 21, 2, 22, 1),
    Sketcher.Constraint("Coincident", 22, 2, 23, 1),
    Sketcher.Constraint("Coincident", 23, 2, 20, 1),
    Sketcher.Constraint("Horizontal", 0),
    Sketcher.Constraint("Vertical", 1),
    Sketcher.Constraint("Vertical", 4),
    Sketcher.Constraint("Vertical", 7),
    Sketcher.Constraint("Horizontal", 8),
    Sketcher.Constraint("Vertical", 9),
    Sketcher.Constraint("Vertical", 12),
    Sketcher.Constraint("Vertical", 15),
    Sketcher.Constraint("Symmetric", 2, 2, 5, 2, -1),
    Sketcher.Constraint("Symmetric", 1, 2, 6, 2, -1),
    Sketcher.Constraint("Symmetric", 10, 2, 13, 2, -1),
    Sketcher.Constraint("Symmetric", 9, 2, 14, 2, -1),
    Sketcher.Constraint("Symmetric", 18, 2, 20, 2, -1),
    Sketcher.Constraint("Symmetric", 17, 2, 21, 2, -1),
    Sketcher.Constraint("Symmetric", 16, 2, 22, 2, -1),
    Sketcher.Constraint("Symmetric", 19, 2, 23, 2, -1),
    Sketcher.Constraint("Perpendicular", 2, 3),
    Sketcher.Constraint("Perpendicular", 3, 5),
    Sketcher.Constraint("Perpendicular", 5, 6),
    Sketcher.Constraint("Perpendicular", 6, 10),
    Sketcher.Constraint("Perpendicular", 10, 11),
    Sketcher.Constraint("Perpendicular", 11, 13),
    Sketcher.Constraint("Perpendicular", 14, 16),
    Sketcher.Constraint("Perpendicular", 16, 17),
    Sketcher.Constraint("Perpendicular", 17, 18),
    Sketcher.Constraint("Perpendicular", 18, 19),
    Sketcher.Constraint("Horizontal", 6, 2, 9, 2),
    Sketcher.Constraint("Horizontal", 5, 2, 10, 2),
    Sketcher.Constraint("Horizontal", 4, 2, 11, 2),
    Sketcher.Constraint("Horizontal", 10, 2, 17, 2),
    Sketcher.Constraint("Horizontal", 17, 2, 19, 2),
    Sketcher.Constraint("Vertical", 1, 2, 3, 2),
    Sketcher.Constraint("DistanceX", 0, 1, 0, 2, 4.0),
    Sketcher.Constraint("Distance", 16, 2.0),
    Sketcher.Constraint("DistanceX", 0, 2, -1, 1, 35.0),
    Sketcher.Constraint("DistanceY", -1, 1, 0, 2, 25.0),
    Sketcher.Constraint("DistanceY", -1, 1, 2, 2, 10.0),
    Sketcher.Constraint("DistanceY", 7, 2, -1, 1, 15.0),
    Sketcher.Constraint("DistanceX", 16, 2, -1, 1, 37.0),
    Sketcher.Constraint("DistanceY", 1, 2, 1, 1, 9.928932),
])
pad4 = doc.addObject("PartDesign::Pad", "Pad003")
body.addObject(pad4)
pad4.Profile = sketch13
pad4.Length = 29

sketch14 = doc.addObject("Sketcher::SketchObject", "Sketch013")
body.addObject(sketch14)
sketch14.AttachmentSupport = (doc.XY_Plane, [""])
sketch14.MapMode = "FlatFace"
sketch14.AttachmentOffset = App.Placement(Vector(0, 0, -16), App.Rotation())
sketch14.addGeometry([
    Part.LineSegment(Vector(-37, 14, 0), Vector(-33, 10, 0)),
    Part.LineSegment(Vector(-33, 10, 0), Vector(-37, 6, 0)),
    Part.LineSegment(Vector(-37, 6, 0), Vector(-41, 10, 0)),
    Part.LineSegment(Vector(-41, 10, 0), Vector(-37, 14, 0)),
    Part.LineSegment(Vector(-37, -6, 0), Vector(-33, -10, 0)),
    Part.LineSegment(Vector(-33, -10, 0), Vector(-37, -14, 0)),
    Part.LineSegment(Vector(-37, -14, 0), Vector(-41, -10, 0)),
    Part.LineSegment(Vector(-41, -10, 0), Vector(-37, -6, 0)),
], False)
sketch14.addConstraint([
    Sketcher.Constraint("Coincident", 0, 2, 1, 1),
    Sketcher.Constraint("Coincident", 1, 2, 2, 1),
    Sketcher.Constraint("Coincident", 2, 2, 3, 1),
    Sketcher.Constraint("Coincident", 3, 2, 0, 1),
    Sketcher.Constraint("Coincident", 4, 2, 5, 1),
    Sketcher.Constraint("Coincident", 5, 2, 6, 1),
    Sketcher.Constraint("Coincident", 6, 2, 7, 1),
    Sketcher.Constraint("Coincident", 7, 2, 4, 1),
    Sketcher.Constraint("Symmetric", 0, 2, 4, 2, -1),
    Sketcher.Constraint("Symmetric", 3, 2, 5, 2, -1),
    Sketcher.Constraint("Symmetric", 2, 2, 6, 2, -1),
    Sketcher.Constraint("Symmetric", 1, 2, 7, 2, -1),
    Sketcher.Constraint("Perpendicular", 0, 1),
    Sketcher.Constraint("Perpendicular", 1, 2),
    Sketcher.Constraint("Perpendicular", 2, 3),
    Sketcher.Constraint("Perpendicular", 3, 4),
    Sketcher.Constraint("Horizontal", 0, 2, 2, 2),
    Sketcher.Constraint("DistanceY", -1, 1, 0, 2, 10.0),
    Sketcher.Constraint("DistanceX", 1, 2, -1, 1, 37.0),
    Sketcher.Constraint("Distance", 0, 5.8),
])
pocket8 = doc.addObject("PartDesign::Pocket", "Pocket007")
body.addObject(pocket8)
pocket8.Profile = sketch14
pocket8.Length = 26
pocket8.Reversed = True
doc.recompute()

fillet = doc.addObject("PartDesign::Fillet", "Fillet")
body.addObject(fillet)
fillet.Base = (pocket8, edges_at(pocket8, [(-103.5, 15, -2.75), (-103.5, 0, -0.5)]))
fillet.Radius = 10

sketch15 = doc.addObject("Sketcher::SketchObject", "Sketch014")
body.addObject(sketch15)
sketch15.AttachmentSupport = (doc.XZ_Plane, [""])
sketch15.MapMode = "FlatFace"
sketch15.AttachmentOffset = App.Placement(Vector(0, 0, -25), App.Rotation())
sketch15.addGeometry([
    Part.LineSegment(Vector(-71.5, -16, 0), Vector(-71.5, -13, 0)),
    Part.LineSegment(Vector(-71.5, -13, 0), Vector(71.5, -13, 0)),
    Part.LineSegment(Vector(71.5, -13, 0), Vector(71.5, -16, 0)),
    Part.LineSegment(Vector(71.5, -16, 0), Vector(-71.5, -16, 0)),
], False)
sketch15.addConstraint([
    Sketcher.Constraint("Coincident", 0, 2, 1, 1),
    Sketcher.Constraint("Coincident", 1, 2, 2, 1),
    Sketcher.Constraint("Coincident", 2, 2, 3, 1),
    Sketcher.Constraint("Coincident", 3, 2, 0, 1),
    Sketcher.Constraint("Vertical", 0),
    Sketcher.Constraint("Horizontal", 1),
    Sketcher.Constraint("Vertical", 2),
    Sketcher.Constraint("Horizontal", 3),
    Sketcher.Constraint("DistanceX", 1, 1, 1, 2, 143.0),
    Sketcher.Constraint("DistanceY", 0, 1, 0, 2, 3.0),
    Sketcher.Constraint("DistanceY", 0, 2, -1, 1, 13.0),
    Sketcher.Constraint("DistanceX", 0, 2, -1, 1, 71.5),
])
pad5 = doc.addObject("PartDesign::Pad", "Pad004")
body.addObject(pad5)
pad5.Profile = sketch15
pad5.Length = 3
pad5.Reversed = True

sketch16 = doc.addObject("Sketcher::SketchObject", "Sketch015")
body.addObject(sketch16)
sketch16.AttachmentSupport = (doc.XY_Plane, [""])
sketch16.MapMode = "FlatFace"
sketch16.AttachmentOffset = App.Placement(Vector(0, 0, 16), App.Rotation())
sketch16.addGeometry([
    Part.LineSegment(Vector(0, 22.4, 0), Vector(-1.4, 21, 0)),
    Part.LineSegment(Vector(-1.4, 21, 0), Vector(0, 19.6, 0)),
    Part.LineSegment(Vector(0, 19.6, 0), Vector(1.4, 21, 0)),
    Part.LineSegment(Vector(1.4, 21, 0), Vector(0, 22.4, 0)),
], False)
sketch16.addConstraint([
    Sketcher.Constraint("Coincident", 0, 2, 1, 1),
    Sketcher.Constraint("Coincident", 1, 2, 2, 1),
    Sketcher.Constraint("Coincident", 2, 2, 3, 1),
    Sketcher.Constraint("Coincident", 3, 2, 0, 1),
    Sketcher.Constraint("Symmetric", 0, 2, 2, 2, -2),
    Sketcher.Constraint("PointOnObject", 1, 2, -2),
    Sketcher.Constraint("PointOnObject", 3, 2, -2),
    Sketcher.Constraint("Perpendicular", 0, 1),
    Sketcher.Constraint("Perpendicular", 1, 2),
    Sketcher.Constraint("Distance", 0, 2.0),
    Sketcher.Constraint("DistanceY", -1, 1, 0, 2, 21.0),
])
pocket9 = doc.addObject("PartDesign::Pocket", "Pocket008")
body.addObject(pocket9)
pocket9.Profile = sketch16
pocket9.Type = "ThroughAll"

sketch17 = doc.addObject("Sketcher::SketchObject", "Sketch016")
body.addObject(sketch17)
sketch17.AttachmentSupport = (doc.XY_Plane, [""])
sketch17.MapMode = "FlatFace"
sketch17.addGeometry([
    Part.LineSegment(Vector(-87.5, 41.2, 0), Vector(-88.8, 40, 0)),
    Part.LineSegment(Vector(-88.8, 40, 0), Vector(-87.5, 38.8, 0)),
    Part.LineSegment(Vector(-87.5, 38.8, 0), Vector(-86.2, 40, 0)),
    Part.LineSegment(Vector(-86.2, 40, 0), Vector(-87.5, 41.2, 0)),
    Part.LineSegment(Vector(87.5, 41.2, 0), Vector(86.2, 40, 0)),
    Part.LineSegment(Vector(86.2, 40, 0), Vector(87.5, 38.8, 0)),
    Part.LineSegment(Vector(87.5, 38.8, 0), Vector(88.8, 40, 0)),
    Part.LineSegment(Vector(88.8, 40, 0), Vector(87.5, 41.2, 0)),
], False)
sketch17.addConstraint([
    Sketcher.Constraint("Coincident", 0, 2, 1, 1),
    Sketcher.Constraint("Coincident", 1, 2, 2, 1),
    Sketcher.Constraint("Coincident", 2, 2, 3, 1),
    Sketcher.Constraint("Coincident", 3, 2, 0, 1),
    Sketcher.Constraint("Coincident", 4, 2, 5, 1),
    Sketcher.Constraint("Coincident", 5, 2, 6, 1),
    Sketcher.Constraint("Coincident", 6, 2, 7, 1),
    Sketcher.Constraint("Coincident", 7, 2, 4, 1),
    Sketcher.Constraint("Symmetric", 2, 2, 4, 2, -2),
    Sketcher.Constraint("Symmetric", 1, 2, 5, 2, -2),
    Sketcher.Constraint("Symmetric", 0, 2, 6, 2, -2),
    Sketcher.Constraint("Symmetric", 3, 2, 7, 2, -2),
    Sketcher.Constraint("Perpendicular", 0, 1),
    Sketcher.Constraint("Perpendicular", 1, 2),
    Sketcher.Constraint("Perpendicular", 2, 3),
    Sketcher.Constraint("Perpendicular", 3, 4),
    Sketcher.Constraint("Horizontal", 0, 2, 2, 2),
    Sketcher.Constraint("DistanceY", -1, 1, 0, 2, 40.0),
    Sketcher.Constraint("DistanceX", 0, 2, 4, 2, 175.0),
    Sketcher.Constraint("DistanceX", 0, 2, 2, 2, 2.5),
])
pocket10 = doc.addObject("PartDesign::Pocket", "Pocket009")
body.addObject(pocket10)
pocket10.Profile = sketch17
pocket10.Type = "ThroughAll"
pocket10.Reversed = True
doc.recompute()

fillet2 = doc.addObject("PartDesign::Fillet", "Fillet001")
body.addObject(fillet2)
fillet2.Base = (pocket10, edges_at(pocket10, [(-37, 5.899, -3), (-37, -14.101, -3)]))
fillet2.Radius = 2.5

sketch18 = doc.addObject("Sketcher::SketchObject", "Sketch017")
body.addObject(sketch18)
sketch18.AttachmentSupport = (doc.XZ_Plane, [""])
sketch18.MapMode = "FlatFace"
sketch18.AttachmentOffset = App.Placement(Vector(0, 0, -25), App.Rotation())
sketch18.addGeometry([
    Part.LineSegment(Vector(-39, 5, 0), Vector(-39, 7, 0)),
    Part.LineSegment(Vector(-39, 7, 0), Vector(-35, 7, 0)),
    Part.LineSegment(Vector(-35, 7, 0), Vector(-35, 5, 0)),
    Part.LineSegment(Vector(-35, 5, 0), Vector(-39, 5, 0)),
    Part.LineSegment(Vector(28, 5, 0), Vector(28, 7, 0)),
    Part.LineSegment(Vector(28, 7, 0), Vector(32, 7, 0)),
    Part.LineSegment(Vector(32, 7, 0), Vector(32, 5, 0)),
    Part.LineSegment(Vector(32, 5, 0), Vector(28, 5, 0)),
], False)
sketch18.addConstraint([
    Sketcher.Constraint("Coincident", 0, 2, 1, 1),
    Sketcher.Constraint("Coincident", 1, 2, 2, 1),
    Sketcher.Constraint("Coincident", 2, 2, 3, 1),
    Sketcher.Constraint("Coincident", 3, 2, 0, 1),
    Sketcher.Constraint("Coincident", 4, 2, 5, 1),
    Sketcher.Constraint("Coincident", 5, 2, 6, 1),
    Sketcher.Constraint("Coincident", 6, 2, 7, 1),
    Sketcher.Constraint("Coincident", 7, 2, 4, 1),
    Sketcher.Constraint("Vertical", 0),
    Sketcher.Constraint("Horizontal", 1),
    Sketcher.Constraint("Vertical", 2),
    Sketcher.Constraint("Horizontal", 3),
    Sketcher.Constraint("Vertical", 4),
    Sketcher.Constraint("Horizontal", 5),
    Sketcher.Constraint("Vertical", 6),
    Sketcher.Constraint("Horizontal", 7),
    Sketcher.Constraint("Horizontal", 1, 2, 4, 2),
    Sketcher.Constraint("Horizontal", 3, 2, 6, 2),
    Sketcher.Constraint("Equal", 3, 5),
    Sketcher.Constraint("DistanceX", 1, 1, 1, 2, 4.0),
    Sketcher.Constraint("DistanceY", 0, 1, 0, 2, 2.0),
    Sketcher.Constraint("DistanceX", 0, 2, -1, 1, 39.0),
    Sketcher.Constraint("DistanceY", -1, 1, 0, 2, 7.0),
    Sketcher.Constraint("DistanceX", -1, 1, 4, 2, 28.0),
])
pad6 = doc.addObject("PartDesign::Pad", "Pad005")
body.addObject(pad6)
pad6.Profile = sketch18
pad6.Length = 2
pad6.Reversed = True

doc.recompute()
